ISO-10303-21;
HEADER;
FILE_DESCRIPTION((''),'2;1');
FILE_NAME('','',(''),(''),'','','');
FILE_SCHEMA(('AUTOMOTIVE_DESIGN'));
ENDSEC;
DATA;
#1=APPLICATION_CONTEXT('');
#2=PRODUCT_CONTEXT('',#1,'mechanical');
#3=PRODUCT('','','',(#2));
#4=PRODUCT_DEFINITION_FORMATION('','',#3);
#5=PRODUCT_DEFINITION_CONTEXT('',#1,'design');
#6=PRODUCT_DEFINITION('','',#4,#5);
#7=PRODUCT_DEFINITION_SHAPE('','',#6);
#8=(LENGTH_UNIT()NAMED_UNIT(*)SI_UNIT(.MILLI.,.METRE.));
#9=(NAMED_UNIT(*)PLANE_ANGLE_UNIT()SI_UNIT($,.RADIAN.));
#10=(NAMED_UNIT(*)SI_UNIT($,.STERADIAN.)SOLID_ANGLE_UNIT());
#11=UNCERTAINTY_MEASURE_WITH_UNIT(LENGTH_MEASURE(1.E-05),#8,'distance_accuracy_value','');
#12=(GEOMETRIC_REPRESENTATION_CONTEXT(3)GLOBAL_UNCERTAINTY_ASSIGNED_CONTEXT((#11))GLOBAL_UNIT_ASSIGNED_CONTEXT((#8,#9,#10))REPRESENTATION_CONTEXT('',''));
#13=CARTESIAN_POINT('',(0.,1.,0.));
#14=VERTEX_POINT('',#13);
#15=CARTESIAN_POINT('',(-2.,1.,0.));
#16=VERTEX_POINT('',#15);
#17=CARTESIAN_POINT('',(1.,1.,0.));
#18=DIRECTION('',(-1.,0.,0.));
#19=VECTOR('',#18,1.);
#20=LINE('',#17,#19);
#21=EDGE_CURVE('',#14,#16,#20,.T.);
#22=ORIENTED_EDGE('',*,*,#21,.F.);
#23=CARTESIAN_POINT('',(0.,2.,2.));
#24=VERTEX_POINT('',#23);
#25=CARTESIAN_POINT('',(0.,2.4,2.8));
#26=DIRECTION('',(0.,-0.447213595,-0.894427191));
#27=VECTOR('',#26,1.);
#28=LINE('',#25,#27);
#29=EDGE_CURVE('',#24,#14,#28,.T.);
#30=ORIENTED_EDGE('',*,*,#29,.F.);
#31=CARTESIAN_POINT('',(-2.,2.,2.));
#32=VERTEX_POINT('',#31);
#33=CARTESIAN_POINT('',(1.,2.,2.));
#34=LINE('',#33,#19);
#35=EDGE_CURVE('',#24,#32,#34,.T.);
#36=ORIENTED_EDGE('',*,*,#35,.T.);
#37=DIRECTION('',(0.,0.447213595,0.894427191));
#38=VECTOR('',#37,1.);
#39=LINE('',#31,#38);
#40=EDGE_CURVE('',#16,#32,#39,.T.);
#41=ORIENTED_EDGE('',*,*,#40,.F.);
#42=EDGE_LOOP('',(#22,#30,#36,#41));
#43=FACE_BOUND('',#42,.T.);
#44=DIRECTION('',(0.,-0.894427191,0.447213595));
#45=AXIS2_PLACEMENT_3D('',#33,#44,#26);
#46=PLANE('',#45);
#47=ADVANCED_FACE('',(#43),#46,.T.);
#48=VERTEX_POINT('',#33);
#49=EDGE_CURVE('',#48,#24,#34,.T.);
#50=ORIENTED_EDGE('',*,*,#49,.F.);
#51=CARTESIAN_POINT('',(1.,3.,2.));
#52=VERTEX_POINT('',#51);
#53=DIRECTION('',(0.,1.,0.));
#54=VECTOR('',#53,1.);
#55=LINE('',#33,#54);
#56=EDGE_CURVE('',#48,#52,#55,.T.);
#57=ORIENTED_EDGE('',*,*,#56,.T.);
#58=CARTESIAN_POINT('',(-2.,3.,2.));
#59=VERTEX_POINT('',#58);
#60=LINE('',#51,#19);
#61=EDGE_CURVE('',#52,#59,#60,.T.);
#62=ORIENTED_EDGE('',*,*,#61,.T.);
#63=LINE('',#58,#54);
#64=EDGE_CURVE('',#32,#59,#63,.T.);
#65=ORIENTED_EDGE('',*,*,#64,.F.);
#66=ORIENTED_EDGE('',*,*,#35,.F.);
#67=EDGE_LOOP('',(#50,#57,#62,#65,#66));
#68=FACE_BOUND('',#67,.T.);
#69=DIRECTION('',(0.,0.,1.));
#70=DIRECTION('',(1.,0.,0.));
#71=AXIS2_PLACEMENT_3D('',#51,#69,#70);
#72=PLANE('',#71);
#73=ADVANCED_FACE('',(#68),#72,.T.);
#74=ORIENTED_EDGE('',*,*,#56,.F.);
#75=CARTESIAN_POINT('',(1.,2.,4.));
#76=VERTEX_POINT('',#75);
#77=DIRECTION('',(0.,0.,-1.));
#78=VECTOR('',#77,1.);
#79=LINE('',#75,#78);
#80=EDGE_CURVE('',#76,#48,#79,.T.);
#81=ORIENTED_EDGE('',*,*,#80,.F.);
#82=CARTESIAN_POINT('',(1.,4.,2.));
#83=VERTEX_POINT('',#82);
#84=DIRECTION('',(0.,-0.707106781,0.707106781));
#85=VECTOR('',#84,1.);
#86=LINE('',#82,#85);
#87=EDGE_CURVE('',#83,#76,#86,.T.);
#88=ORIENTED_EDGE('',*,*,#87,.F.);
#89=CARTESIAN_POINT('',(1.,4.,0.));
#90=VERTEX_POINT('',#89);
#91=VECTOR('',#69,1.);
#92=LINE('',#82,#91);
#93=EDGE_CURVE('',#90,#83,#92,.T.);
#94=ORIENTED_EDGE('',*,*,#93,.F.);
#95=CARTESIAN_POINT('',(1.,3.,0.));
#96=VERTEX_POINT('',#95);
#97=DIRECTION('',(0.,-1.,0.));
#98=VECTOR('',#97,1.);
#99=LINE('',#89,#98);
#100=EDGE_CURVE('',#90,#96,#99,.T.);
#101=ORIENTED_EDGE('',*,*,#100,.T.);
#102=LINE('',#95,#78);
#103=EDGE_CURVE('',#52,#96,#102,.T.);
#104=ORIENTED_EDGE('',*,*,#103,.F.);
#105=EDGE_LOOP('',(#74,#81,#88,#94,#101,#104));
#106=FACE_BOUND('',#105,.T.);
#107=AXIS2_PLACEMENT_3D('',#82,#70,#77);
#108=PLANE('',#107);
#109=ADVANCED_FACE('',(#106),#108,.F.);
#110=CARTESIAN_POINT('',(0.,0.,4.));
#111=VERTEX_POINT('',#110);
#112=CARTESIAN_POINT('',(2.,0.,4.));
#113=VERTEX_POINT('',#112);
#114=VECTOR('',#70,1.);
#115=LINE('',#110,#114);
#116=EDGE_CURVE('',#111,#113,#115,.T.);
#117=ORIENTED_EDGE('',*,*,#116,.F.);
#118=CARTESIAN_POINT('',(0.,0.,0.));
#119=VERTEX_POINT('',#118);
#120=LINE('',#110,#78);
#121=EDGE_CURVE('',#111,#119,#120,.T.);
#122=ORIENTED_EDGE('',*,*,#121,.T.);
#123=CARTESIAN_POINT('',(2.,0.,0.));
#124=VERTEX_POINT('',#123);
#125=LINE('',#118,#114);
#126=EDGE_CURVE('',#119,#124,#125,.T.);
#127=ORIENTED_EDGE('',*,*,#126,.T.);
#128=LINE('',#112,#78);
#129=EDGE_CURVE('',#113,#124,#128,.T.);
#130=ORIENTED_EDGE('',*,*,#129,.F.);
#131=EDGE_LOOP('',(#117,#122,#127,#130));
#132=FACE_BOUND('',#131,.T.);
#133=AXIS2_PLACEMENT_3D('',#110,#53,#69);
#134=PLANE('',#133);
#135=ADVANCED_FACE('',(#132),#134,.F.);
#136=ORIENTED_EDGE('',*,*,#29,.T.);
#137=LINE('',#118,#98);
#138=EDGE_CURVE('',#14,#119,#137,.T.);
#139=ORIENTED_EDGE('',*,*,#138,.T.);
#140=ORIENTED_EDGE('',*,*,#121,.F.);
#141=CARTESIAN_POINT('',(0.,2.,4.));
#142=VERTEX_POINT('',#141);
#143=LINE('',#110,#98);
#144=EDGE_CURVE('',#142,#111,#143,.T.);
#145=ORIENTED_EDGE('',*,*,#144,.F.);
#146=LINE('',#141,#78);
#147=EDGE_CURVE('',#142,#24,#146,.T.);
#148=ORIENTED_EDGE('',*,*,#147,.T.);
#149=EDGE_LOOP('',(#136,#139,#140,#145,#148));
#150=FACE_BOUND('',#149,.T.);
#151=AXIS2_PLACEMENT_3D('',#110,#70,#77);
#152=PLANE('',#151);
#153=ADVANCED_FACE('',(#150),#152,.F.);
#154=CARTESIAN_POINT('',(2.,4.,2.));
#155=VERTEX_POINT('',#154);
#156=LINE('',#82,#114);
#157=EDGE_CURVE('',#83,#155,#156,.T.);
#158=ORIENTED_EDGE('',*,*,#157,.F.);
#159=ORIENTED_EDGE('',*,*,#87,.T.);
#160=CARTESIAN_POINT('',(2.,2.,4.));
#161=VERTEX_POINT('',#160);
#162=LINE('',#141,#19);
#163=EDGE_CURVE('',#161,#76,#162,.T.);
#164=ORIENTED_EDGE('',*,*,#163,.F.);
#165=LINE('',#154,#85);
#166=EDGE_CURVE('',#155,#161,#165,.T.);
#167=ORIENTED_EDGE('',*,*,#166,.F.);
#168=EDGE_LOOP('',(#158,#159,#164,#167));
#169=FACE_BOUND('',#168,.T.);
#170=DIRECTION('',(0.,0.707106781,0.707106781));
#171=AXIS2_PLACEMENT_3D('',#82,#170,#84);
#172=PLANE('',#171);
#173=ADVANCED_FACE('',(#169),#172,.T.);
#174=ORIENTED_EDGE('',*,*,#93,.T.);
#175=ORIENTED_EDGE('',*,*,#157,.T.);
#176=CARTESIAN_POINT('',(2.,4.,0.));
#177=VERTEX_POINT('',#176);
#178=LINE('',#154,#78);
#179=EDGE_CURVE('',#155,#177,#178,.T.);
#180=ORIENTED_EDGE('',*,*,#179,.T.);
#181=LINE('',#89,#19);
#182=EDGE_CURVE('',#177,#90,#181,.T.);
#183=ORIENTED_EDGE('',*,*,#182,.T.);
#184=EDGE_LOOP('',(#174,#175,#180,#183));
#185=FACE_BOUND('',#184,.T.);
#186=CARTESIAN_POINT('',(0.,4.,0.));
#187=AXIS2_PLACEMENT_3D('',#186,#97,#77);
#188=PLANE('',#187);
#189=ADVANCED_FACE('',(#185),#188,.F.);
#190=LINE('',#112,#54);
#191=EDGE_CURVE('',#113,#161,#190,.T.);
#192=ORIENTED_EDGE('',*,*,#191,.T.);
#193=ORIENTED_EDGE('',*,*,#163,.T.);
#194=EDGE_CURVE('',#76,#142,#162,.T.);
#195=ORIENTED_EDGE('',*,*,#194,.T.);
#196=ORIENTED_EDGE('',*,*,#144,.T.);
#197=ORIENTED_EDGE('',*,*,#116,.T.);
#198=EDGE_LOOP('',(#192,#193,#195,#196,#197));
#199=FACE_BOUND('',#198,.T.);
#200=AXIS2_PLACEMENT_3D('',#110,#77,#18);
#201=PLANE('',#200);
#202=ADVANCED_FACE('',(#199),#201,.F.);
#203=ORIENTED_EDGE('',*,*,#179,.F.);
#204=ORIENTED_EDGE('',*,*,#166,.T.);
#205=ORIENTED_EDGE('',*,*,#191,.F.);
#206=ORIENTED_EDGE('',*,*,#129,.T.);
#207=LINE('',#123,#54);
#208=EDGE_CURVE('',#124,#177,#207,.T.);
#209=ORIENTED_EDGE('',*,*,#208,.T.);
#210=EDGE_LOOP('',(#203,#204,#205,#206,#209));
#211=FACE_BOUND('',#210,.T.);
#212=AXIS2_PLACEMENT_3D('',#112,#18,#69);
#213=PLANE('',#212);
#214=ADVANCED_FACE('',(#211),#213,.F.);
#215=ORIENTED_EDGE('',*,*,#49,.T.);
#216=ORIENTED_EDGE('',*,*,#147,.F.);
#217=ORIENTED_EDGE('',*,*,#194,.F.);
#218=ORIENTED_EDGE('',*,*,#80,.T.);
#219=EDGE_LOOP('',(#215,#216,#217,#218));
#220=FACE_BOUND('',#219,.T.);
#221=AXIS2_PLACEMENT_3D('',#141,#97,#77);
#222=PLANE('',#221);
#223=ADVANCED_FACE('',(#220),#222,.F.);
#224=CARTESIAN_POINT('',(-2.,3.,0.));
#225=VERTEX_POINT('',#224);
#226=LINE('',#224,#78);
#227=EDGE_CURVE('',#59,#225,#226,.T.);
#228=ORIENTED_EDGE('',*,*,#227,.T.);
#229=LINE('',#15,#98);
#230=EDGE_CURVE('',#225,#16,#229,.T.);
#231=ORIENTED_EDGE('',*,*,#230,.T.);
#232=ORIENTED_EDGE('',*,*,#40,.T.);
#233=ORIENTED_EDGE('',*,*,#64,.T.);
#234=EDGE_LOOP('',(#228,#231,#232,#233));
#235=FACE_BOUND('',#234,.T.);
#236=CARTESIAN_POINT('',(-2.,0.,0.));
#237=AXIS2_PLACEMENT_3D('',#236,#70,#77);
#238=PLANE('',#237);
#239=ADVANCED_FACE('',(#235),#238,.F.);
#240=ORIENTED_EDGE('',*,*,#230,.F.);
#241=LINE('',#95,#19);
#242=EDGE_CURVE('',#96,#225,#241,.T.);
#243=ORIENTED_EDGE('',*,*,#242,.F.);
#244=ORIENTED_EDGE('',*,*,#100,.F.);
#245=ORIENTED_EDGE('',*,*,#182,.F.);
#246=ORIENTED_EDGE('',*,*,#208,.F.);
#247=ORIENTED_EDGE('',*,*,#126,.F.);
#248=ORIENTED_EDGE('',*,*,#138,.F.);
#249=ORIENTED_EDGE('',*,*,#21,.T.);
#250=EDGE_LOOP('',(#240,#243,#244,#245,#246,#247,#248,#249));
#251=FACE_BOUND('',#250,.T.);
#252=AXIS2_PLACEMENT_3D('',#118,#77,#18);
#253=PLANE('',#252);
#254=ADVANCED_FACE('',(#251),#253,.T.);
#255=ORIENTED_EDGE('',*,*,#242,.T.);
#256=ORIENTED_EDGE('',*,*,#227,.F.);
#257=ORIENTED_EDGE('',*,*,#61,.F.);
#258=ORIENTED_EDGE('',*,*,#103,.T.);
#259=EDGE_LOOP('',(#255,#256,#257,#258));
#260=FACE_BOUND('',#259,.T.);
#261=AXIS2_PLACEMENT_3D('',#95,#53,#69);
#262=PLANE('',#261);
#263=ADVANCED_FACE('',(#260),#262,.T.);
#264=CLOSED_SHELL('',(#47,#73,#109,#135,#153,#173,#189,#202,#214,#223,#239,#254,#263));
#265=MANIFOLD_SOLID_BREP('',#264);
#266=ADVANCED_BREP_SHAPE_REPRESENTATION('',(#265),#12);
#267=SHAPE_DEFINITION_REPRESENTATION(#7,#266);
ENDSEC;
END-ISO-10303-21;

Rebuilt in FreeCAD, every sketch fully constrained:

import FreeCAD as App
import Part
import Sketcher
from FreeCAD import Vector


def add_polygon(sketch, points):
    """Adds a closed chain of lines whose ends are joined by coincident constraints."""
    first, n = sketch.GeometryCount, len(points)
    for a, b in zip(points, points[1:] + points[:1]):
        sketch.addGeometry(Part.LineSegment(App.Vector(*a, 0), App.Vector(*b, 0)), False)
    for i in range(n):
        sketch.addConstraint(Sketcher.Constraint("Coincident", first + i, 2, first + (i + 1) % n, 1))

doc = App.newDocument("Part")
body = doc.addObject("PartDesign::Body", "Body")

sketch1 = doc.addObject("Sketcher::SketchObject", "Sketch")
body.addObject(sketch1)
sketch1.AttachmentSupport = (doc.XY_Plane, [""])
sketch1.MapMode = "FlatFace"
add_polygon(sketch1, [(0, 2), (0, 0), (2, 0), (2, 2)])
sketch1.addConstraint(Sketcher.Constraint("Vertical", 0))
sketch1.addConstraint(Sketcher.Constraint("Horizontal", 1))
sketch1.addConstraint(Sketcher.Constraint("Vertical", 2))
sketch1.addConstraint(Sketcher.Constraint("Horizontal", 3))
sketch1.addConstraint(Sketcher.Constraint("Coincident", 0, 2, -1, 1))
sketch1.addConstraint(Sketcher.Constraint("Equal", 3, 0))
sketch1.addConstraint(Sketcher.Constraint("DistanceX", 1, 1, 1, 2, 2.0))
pad1 = doc.addObject("PartDesign::Pad", "Pad")
body.addObject(pad1)
pad1.Profile = sketch1
pad1.Length = 4

sketch2 = doc.addObject("Sketcher::SketchObject", "Sketch001")
body.addObject(sketch2)
sketch2.AttachmentSupport = (doc.YZ_Plane, [""])
sketch2.MapMode = "FlatFace"
add_polygon(sketch2, [(3, 0), (1, 0), (2, 2), (3, 2)])
sketch2.addConstraint(Sketcher.Constraint("Horizontal", 0))
sketch2.addConstraint(Sketcher.Constraint("Horizontal", 2))
sketch2.addConstraint(Sketcher.Constraint("Vertical", 3))
sketch2.addConstraint(Sketcher.Constraint("PointOnObject", 0, 2, -1))
sketch2.addConstraint(Sketcher.Constraint("Equal", 0, 3))
sketch2.addConstraint(Sketcher.Constraint("DistanceX", 0, 2, 0, 1, 2.0))
sketch2.addConstraint(Sketcher.Constraint("DistanceX", 2, 1, 2, 2, 1.0))
sketch2.addConstraint(Sketcher.Constraint("DistanceX", -1, 1, 0, 2, 1.0))
pad2 = doc.addObject("PartDesign::Pad", "Pad001")
body.addObject(pad2)
pad2.Profile = sketch2
pad2.Type = "TwoLengths"
pad2.Length = 2
pad2.Length2 = 1
pad2.Reversed = True

sketch3 = doc.addObject("Sketcher::SketchObject", "Sketch002")
body.addObject(sketch3)
sketch3.AttachmentSupport = (doc.XZ_Plane, [""])
sketch3.MapMode = "FlatFace"
sketch3.AttachmentOffset = App.Placement(Vector(0, 0, -2), App.Rotation())
add_polygon(sketch3, [(1, 0), (1, 2), (2, 2), (2, 0)])
sketch3.addConstraint(Sketcher.Constraint("Vertical", 0))
sketch3.addConstraint(Sketcher.Constraint("Horizontal", 1))
sketch3.addConstraint(Sketcher.Constraint("Vertical", 2))
sketch3.addConstraint(Sketcher.Constraint("Horizontal", 3))
sketch3.addConstraint(Sketcher.Constraint("PointOnObject", 2, 2, -1))
sketch3.addConstraint(Sketcher.Constraint("DistanceX", 1, 1, 1, 2, 1.0))
sketch3.addConstraint(Sketcher.Constraint("DistanceY", 0, 1, 0, 2, 2.0))
sketch3.addConstraint(Sketcher.Constraint("DistanceX", -1, 1, 0, 2, 1.0))
pad3 = doc.addObject("PartDesign::Pad", "Pad002")
body.addObject(pad3)
pad3.Profile = sketch3
pad3.Length = 2
pad3.Reversed = True

sketch4 = doc.addObject("Sketcher::SketchObject", "Sketch003")
body.addObject(sketch4)
sketch4.AttachmentSupport = (doc.YZ_Plane, [""])
sketch4.MapMode = "FlatFace"
sketch4.AttachmentOffset = App.Placement(Vector(0, 0, 2), App.Rotation())
add_polygon(sketch4, [(4, 2), (2, 4), (2, 2)])
sketch4.addConstraint(Sketcher.Constraint("Vertical", 1))
sketch4.addConstraint(Sketcher.Constraint("Horizontal", 2))
sketch4.addConstraint(Sketcher.Constraint("Equal", 2, 1))
sketch4.addConstraint(Sketcher.Constraint("DistanceX", 2, 1, 2, 2, 2.0))
sketch4.addConstraint(Sketcher.Constraint("DistanceX", -1, 1, 0, 2, 2.0))
sketch4.addConstraint(Sketcher.Constraint("DistanceY", -1, 1, 0, 2, 4.0))
pad4 = doc.addObject("PartDesign::Pad", "Pad003")
body.addObject(pad4)
pad4.Profile = sketch4
pad4.Length = 1
pad4.Reversed = True

doc.recompute()
